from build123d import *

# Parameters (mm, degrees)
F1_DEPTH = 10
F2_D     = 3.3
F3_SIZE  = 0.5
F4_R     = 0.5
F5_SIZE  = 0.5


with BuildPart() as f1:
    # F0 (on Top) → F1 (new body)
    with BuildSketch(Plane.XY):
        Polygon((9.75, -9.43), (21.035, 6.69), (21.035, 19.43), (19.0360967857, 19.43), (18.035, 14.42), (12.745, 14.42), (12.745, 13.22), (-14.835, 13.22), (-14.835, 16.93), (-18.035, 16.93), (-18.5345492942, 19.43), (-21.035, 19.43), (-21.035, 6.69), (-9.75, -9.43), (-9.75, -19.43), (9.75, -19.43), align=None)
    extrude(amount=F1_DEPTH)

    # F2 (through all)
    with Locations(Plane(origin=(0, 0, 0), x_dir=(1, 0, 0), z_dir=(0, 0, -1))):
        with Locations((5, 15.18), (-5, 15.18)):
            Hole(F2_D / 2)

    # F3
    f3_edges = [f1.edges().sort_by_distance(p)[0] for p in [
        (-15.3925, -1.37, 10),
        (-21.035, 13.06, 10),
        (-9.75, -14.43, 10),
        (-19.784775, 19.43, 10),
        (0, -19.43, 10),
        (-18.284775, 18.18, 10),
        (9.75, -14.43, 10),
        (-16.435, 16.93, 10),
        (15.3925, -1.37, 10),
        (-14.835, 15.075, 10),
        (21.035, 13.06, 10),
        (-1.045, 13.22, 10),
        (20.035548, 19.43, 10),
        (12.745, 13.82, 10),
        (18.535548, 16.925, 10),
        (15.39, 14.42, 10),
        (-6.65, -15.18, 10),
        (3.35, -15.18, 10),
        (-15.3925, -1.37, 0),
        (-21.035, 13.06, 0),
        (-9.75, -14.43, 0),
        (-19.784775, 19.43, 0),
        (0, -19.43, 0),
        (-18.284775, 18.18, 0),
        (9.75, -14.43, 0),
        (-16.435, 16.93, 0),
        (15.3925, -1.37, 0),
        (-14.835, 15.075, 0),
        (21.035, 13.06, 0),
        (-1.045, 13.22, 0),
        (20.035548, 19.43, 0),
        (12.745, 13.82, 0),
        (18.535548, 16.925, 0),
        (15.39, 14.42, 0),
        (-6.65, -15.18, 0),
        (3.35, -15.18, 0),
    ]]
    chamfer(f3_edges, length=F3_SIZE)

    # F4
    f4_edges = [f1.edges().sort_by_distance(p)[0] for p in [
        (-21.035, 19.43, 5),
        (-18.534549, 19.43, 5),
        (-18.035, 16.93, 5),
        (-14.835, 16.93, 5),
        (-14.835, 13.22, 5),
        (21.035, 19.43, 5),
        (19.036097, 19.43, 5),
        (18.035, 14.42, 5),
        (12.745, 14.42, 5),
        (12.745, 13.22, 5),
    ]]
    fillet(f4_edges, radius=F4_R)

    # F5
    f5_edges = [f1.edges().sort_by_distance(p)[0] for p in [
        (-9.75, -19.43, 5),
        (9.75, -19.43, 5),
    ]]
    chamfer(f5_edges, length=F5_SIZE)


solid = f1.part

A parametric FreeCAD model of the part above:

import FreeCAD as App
import Part
import Sketcher
Q = App.Units.Quantity


def edges_at(feature, points):
    """Names of the edges that pass closest to the given points."""
    edges = feature.Shape.Edges
    near = lambda p: min(range(len(edges)), key=lambda i: edges[i].distToShape(Part.Vertex(*p))[0])
    return sorted({f"Edge{near(p) + 1}" for p in points})


def add_polygon(sketch, points):
    """Adds a closed chain of lines whose ends are joined by coincident constraints."""
    first, n = sketch.GeometryCount, len(points)
    for a, b in zip(points, points[1:] + points[:1]):
        sketch.addGeometry(Part.LineSegment(App.Vector(*a, 0), App.Vector(*b, 0)), False)
    for i in range(n):
        sketch.addConstraint(Sketcher.Constraint("Coincident", first + i, 2, first + (i + 1) % n, 1))

doc = App.newDocument("Part")
body = doc.addObject("PartDesign::Body", "Body")

sketch1 = doc.addObject("Sketcher::SketchObject", "Sketch")
body.addObject(sketch1)
sketch1.AttachmentSupport = (doc.XY_Plane, [""])
sketch1.MapMode = "FlatFace"
add_polygon(sketch1, [(9.8, -9.4), (21, 6.7), (21, 19.4), (19, 19.4), (18, 14.4), (12.7, 14.4), (12.7, 13.2), (-14.8, 13.2), (-14.8, 16.9), (-18, 16.9), (-18.5, 19.4), (-21, 19.4), (-21, 6.7), (-9.8, -9.4), (-9.8, -19.4), (9.8, -19.4)])
sketch1.addConstraint([
    Sketcher.Constraint("Vertical", 1),
    Sketcher.Constraint("Horizontal", 2),
    Sketcher.Constraint("Horizontal", 4),
    Sketcher.Constraint("Vertical", 5),
    Sketcher.Constraint("Horizontal", 6),
    Sketcher.Constraint("Vertical", 7),
    Sketcher.Constraint("Horizontal", 8),
    Sketcher.Constraint("Horizontal", 10),
    Sketcher.Constraint("Vertical", 11),
    Sketcher.Constraint("Vertical", 13),
    Sketcher.Constraint("Horizontal", 14),
    Sketcher.Constraint("Vertical", 15),
    Sketcher.Constraint("Symmetric", 1, 2, 10, 2, -2),
    Sketcher.Constraint("Symmetric", 12, 2, 15, 2, -2),
    Sketcher.Constraint("Horizontal", 0, 2, 11, 2),
    Sketcher.Constraint("DistanceY", 13, 2, 13, 1, Q("10 mm")),
    Sketcher.Constraint("DistanceX", 8, 2, 8, 1, Q("3.2 mm")),
    Sketcher.Constraint("DistanceX", 14, 1, 14, 2, Q("19.5 mm")),
    Sketcher.Constraint("DistanceY", 5, 2, 5, 1, Q("1.2 mm")),
    Sketcher.Constraint("Angle", 3, Q("-101.3 deg")),
    Sketcher.Constraint("Angle", 9, Q("101.3 deg")),
    Sketcher.Constraint("DistanceX", 3, 2, 1, 2, Q("3 mm")),
    Sketcher.Constraint("DistanceX", 10, 2, 8, 2, Q("3 mm")),
    Sketcher.Constraint("DistanceX", 4, 2, 4, 1, Q("5.29 mm")),
    Sketcher.Constraint("DistanceX", 6, 2, 6, 1, Q("27.58 mm")),
    Sketcher.Constraint("DistanceY", 1, 1, 1, 2, Q("12.74 mm")),
    Sketcher.Constraint("DistanceY", 7, 1, 7, 2, Q("3.71 mm")),
    Sketcher.Constraint("DistanceY", 7, 2, 2, 2, Q("2.5 mm")),
    Sketcher.Constraint("DistanceY", -1, 1, 0, 2, Q("6.69 mm")),
    Sketcher.Constraint("DistanceY", 12, 2, -1, 1, Q("9.43 mm")),
])
pad1 = doc.addObject("PartDesign::Pad", "Pad")
body.addObject(pad1)
pad1.Profile = sketch1
pad1.Length = 10

sketch2 = doc.addObject("Sketcher::SketchObject", "Sketch001")
body.addObject(sketch2)
sketch2.AttachmentSupport = (doc.XY_Plane, [""])
sketch2.MapMode = "FlatFace"
sketch2.addGeometry([
    Part.Circle(App.Vector(5, -15.2, 0), App.Vector(0, 0, 1), 1.6),
    Part.Circle(App.Vector(-5, -15.2, 0), App.Vector(0, 0, 1), 1.6),
], False)
sketch2.addConstraint([
    Sketcher.Constraint("Equal", 0, 1),
    Sketcher.Constraint("Symmetric", 0, 3, 1, 3, -2),
    Sketcher.Constraint("Diameter", 0, Q("3.3 mm")),
    Sketcher.Constraint("DistanceX", -1, 1, 0, 3, Q("5 mm")),
    Sketcher.Constraint("DistanceY", 0, 3, -1, 1, Q("15.18 mm")),
])
doc.recompute()
hole = doc.addObject("PartDesign::Hole", "Hole")
body.addObject(hole)
hole.Profile = sketch2
hole.ThreadType = "None"
hole.Diameter = 3.3
hole.DepthType = "ThroughAll"
hole.Reversed = True
doc.recompute()

chamfer = doc.addObject("PartDesign::Chamfer", "Chamfer")
body.addObject(chamfer)
chamfer.Base = (hole, edges_at(hole, [
    (-15.393, -1.37, 10),
    (-21.035, 13.06, 10),
    (-9.75, -14.43, 10),
    (-19.785, 19.43, 10),
    (0, -19.43, 10),
    (-18.285, 18.18, 10),
    (9.75, -14.43, 10),
    (-16.435, 16.93, 10),
    (15.393, -1.37, 10),
    (-14.835, 15.075, 10),
    (21.035, 13.06, 10),
    (-1.045, 13.22, 10),
    (20.036, 19.43, 10),
    (12.745, 13.82, 10),
    (18.536, 16.925, 10),
    (15.39, 14.42, 10),
    (-3.35, -15.18, 10),
    (6.65, -15.18, 10),
    (-15.393, -1.37, 0),
    (-21.035, 13.06, 0),
    (-9.75, -14.43, 0),
    (-19.785, 19.43, 0),
    (0, -19.43, 0),
    (-18.285, 18.18, 0),
    (9.75, -14.43, 0),
    (-16.435, 16.93, 0),
    (15.393, -1.37, 0),
    (-14.835, 15.075, 0),
    (21.035, 13.06, 0),
    (-1.045, 13.22, 0),
    (20.036, 19.43, 0),
    (12.745, 13.82, 0),
    (18.536, 16.925, 0),
    (15.39, 14.42, 0),
    (-3.35, -15.18, 0),
    (6.65, -15.18, 0),
]))
chamfer.Size = 0.5
doc.recompute()

fillet = doc.addObject("PartDesign::Fillet", "Fillet")
body.addObject(fillet)
fillet.Base = (chamfer, edges_at(chamfer, [
    (-21.035, 19.43, 5),
    (-18.535, 19.43, 5),
    (-18.035, 16.93, 5),
    (-14.835, 16.93, 5),
    (-14.835, 13.22, 5),
    (21.035, 19.43, 5),
    (19.036, 19.43, 5),
    (18.035, 14.42, 5),
    (12.745, 14.42, 5),
    (12.745, 13.22, 5),
]))
fillet.Radius = 0.5
doc.recompute()

chamfer2 = doc.addObject("PartDesign::Chamfer", "Chamfer001")
body.addObject(chamfer2)
chamfer2.Base = (fillet, edges_at(fillet, [(-9.75, -19.43, 5), (9.75, -19.43, 5)]))
chamfer2.Size = 0.5

doc.recompute()
